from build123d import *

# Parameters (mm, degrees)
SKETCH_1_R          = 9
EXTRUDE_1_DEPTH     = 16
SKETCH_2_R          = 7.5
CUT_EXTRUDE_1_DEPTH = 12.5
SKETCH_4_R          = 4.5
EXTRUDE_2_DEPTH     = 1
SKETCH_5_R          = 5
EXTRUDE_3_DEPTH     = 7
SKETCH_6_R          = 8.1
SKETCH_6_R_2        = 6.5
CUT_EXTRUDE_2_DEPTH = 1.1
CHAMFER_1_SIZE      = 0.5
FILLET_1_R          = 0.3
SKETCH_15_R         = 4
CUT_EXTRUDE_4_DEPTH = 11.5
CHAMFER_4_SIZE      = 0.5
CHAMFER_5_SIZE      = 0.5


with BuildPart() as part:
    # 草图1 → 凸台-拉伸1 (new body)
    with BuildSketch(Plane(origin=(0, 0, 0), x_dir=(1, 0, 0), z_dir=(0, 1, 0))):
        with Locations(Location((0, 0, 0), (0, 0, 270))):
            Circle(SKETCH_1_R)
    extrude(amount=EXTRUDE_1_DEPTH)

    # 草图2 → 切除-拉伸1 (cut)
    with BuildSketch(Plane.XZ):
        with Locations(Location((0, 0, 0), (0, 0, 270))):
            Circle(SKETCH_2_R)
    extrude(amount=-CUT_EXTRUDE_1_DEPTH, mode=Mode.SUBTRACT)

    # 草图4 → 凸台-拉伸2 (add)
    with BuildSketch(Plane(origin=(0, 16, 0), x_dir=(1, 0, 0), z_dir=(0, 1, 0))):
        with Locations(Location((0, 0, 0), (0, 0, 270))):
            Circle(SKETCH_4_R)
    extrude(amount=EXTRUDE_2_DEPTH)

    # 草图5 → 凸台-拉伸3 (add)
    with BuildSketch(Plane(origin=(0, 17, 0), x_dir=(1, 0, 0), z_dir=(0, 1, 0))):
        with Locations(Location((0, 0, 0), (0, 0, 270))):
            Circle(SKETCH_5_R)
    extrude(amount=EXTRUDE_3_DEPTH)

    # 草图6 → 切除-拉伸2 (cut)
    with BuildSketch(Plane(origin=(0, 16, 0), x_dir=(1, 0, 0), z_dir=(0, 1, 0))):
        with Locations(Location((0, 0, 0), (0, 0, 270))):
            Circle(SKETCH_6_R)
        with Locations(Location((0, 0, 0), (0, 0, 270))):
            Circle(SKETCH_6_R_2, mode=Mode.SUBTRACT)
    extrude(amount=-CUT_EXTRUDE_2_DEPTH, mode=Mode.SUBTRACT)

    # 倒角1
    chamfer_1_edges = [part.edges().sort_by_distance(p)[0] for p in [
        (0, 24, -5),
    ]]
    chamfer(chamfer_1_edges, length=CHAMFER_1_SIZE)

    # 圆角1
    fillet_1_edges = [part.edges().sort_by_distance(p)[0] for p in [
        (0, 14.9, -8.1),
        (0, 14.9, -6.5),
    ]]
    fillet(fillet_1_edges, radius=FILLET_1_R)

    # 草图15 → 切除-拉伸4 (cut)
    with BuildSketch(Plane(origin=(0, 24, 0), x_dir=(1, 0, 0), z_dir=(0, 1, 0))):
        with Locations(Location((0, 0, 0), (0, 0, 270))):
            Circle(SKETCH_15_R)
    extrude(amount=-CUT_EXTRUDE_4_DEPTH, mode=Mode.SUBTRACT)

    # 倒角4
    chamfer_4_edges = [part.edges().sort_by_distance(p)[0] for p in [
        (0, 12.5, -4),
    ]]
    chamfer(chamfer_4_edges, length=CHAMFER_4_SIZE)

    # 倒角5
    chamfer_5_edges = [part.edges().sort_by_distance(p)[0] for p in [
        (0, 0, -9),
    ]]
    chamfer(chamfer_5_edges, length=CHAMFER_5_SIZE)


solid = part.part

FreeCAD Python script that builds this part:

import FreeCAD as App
import Part
import Sketcher
from FreeCAD import Vector


def edges_at(feature, points):
    """Names of the edges that pass closest to the given points."""
    edges = feature.Shape.Edges
    near = lambda p: min(range(len(edges)), key=lambda i: edges[i].distToShape(Part.Vertex(*p))[0])
    return sorted({f"Edge{near(p) + 1}" for p in points})

doc = App.newDocument("Part")
params = doc.addObject("Spreadsheet::Sheet", "Params")
for row, (alias, value) in enumerate([
    ("sketch1_diameter", "18 mm"),
    ("pad1_length", "16 mm"),
    ("sketch2_diameter", "15 mm"),
    ("pocket1_length", "12.5 mm"),
    ("sketch3_diameter", "9 mm"),
    ("pad2_length", "1 mm"),
    ("sketch4_diameter", "10 mm"),
    ("pad3_length", "7 mm"),
    ("sketch5_diameter", "13 mm"),
    ("sketch5_diameter2", "16.2 mm"),
    ("pocket2_length", "1.1 mm"),
    ("chamfer_size", "0.5 mm"),
    ("fillet_radius", "0.3 mm"),
    ("sketch6_diameter", "8 mm"),
    ("pocket3_length", "11.5 mm"),
    ("chamfer2_size", "0.5 mm"),
    ("chamfer3_size", "0.5 mm"),
], start=1):
    params.set(f"A{row}", alias)
    params.set(f"B{row}", "=" + value)
    params.setAlias(f"B{row}", alias)

body = doc.addObject("PartDesign::Body", "Body")

sketch1 = body.newObject("Sketcher::SketchObject", "Sketch")
sketch1.AttachmentSupport = (doc.getObject("XZ_Plane"), [""])
sketch1.MapMode = "FlatFace"
sketch1.addGeometry(Part.Circle(Vector(0, 0, 0), Vector(0, 0, 1), 9), False)
sketch1.addConstraint([
    Sketcher.Constraint("Coincident", 0, 3, -1, 1),
    Sketcher.Constraint("Diameter", 0, 18.0),
])
sketch1.setExpression("Constraints[1]", "Params.sketch1_diameter")
pad1 = body.newObject("PartDesign::Pad", "Pad")
pad1.Profile = sketch1
pad1.setExpression("Length", "Params.pad1_length")
pad1.Reversed = True

sketch2 = body.newObject("Sketcher::SketchObject", "Sketch001")
sketch2.AttachmentSupport = (doc.getObject("XZ_Plane"), [""])
sketch2.MapMode = "FlatFace"
sketch2.addGeometry(Part.Circle(Vector(0, 0, 0), Vector(0, 0, 1), 8), False)
sketch2.addConstraint([
    Sketcher.Constraint("Coincident", 0, 3, -1, 1),
    Sketcher.Constraint("Diameter", 0, 15.0),
])
sketch2.setExpression("Constraints[1]", "Params.sketch2_diameter")
pocket1 = body.newObject("PartDesign::Pocket", "Pocket")
pocket1.Profile = sketch2
pocket1.setExpression("Length", "Params.pocket1_length")

sketch3 = body.newObject("Sketcher::SketchObject", "Sketch002")
sketch3.AttachmentSupport = (doc.getObject("XZ_Plane"), [""])
sketch3.MapMode = "FlatFace"
sketch3.AttachmentOffset = App.Placement(Vector(0, 0, -16), App.Rotation())
sketch3.addGeometry(Part.Circle(Vector(0, 0, 0), Vector(0, 0, 1), 4.5), False)
sketch3.addConstraint([
    Sketcher.Constraint("Coincident", 0, 3, -1, 1),
    Sketcher.Constraint("Diameter", 0, 9.0),
])
sketch3.setExpression("Constraints[1]", "Params.sketch3_diameter")
pad2 = body.newObject("PartDesign::Pad", "Pad001")
pad2.Profile = sketch3
pad2.setExpression("Length", "Params.pad2_length")
pad2.Reversed = True

sketch4 = body.newObject("Sketcher::SketchObject", "Sketch003")
sketch4.AttachmentSupport = (doc.getObject("XZ_Plane"), [""])
sketch4.MapMode = "FlatFace"
sketch4.AttachmentOffset = App.Placement(Vector(0, 0, -17), App.Rotation())
sketch4.addGeometry(Part.Circle(Vector(0, 0, 0), Vector(0, 0, 1), 5), False)
sketch4.addConstraint([
    Sketcher.Constraint("Coincident", 0, 3, -1, 1),
    Sketcher.Constraint("Diameter", 0, 10.0),
])
sketch4.setExpression("Constraints[1]", "Params.sketch4_diameter")
pad3 = body.newObject("PartDesign::Pad", "Pad002")
pad3.Profile = sketch4
pad3.setExpression("Length", "Params.pad3_length")
pad3.Reversed = True

sketch5 = body.newObject("Sketcher::SketchObject", "Sketch004")
sketch5.AttachmentSupport = (doc.getObject("XZ_Plane"), [""])
sketch5.MapMode = "FlatFace"
sketch5.AttachmentOffset = App.Placement(Vector(0, 0, -16), App.Rotation())
sketch5.addGeometry([
    Part.Circle(Vector(0, 0, 0), Vector(0, 0, 1), 8),
    Part.Circle(Vector(0, 0, 0), Vector(0, 0, 1), 6),
], False)
sketch5.addConstraint([
    Sketcher.Constraint("Coincident", 0, 3, -1, 1),
    Sketcher.Constraint("Coincident", 1, 3, -1, 1),
    Sketcher.Constraint("Diameter", 1, 13.0),
    Sketcher.Constraint("Diameter", 0, 16.2),
])
sketch5.setExpression("Constraints[2]", "Params.sketch5_diameter")
sketch5.setExpression("Constraints[3]", "Params.sketch5_diameter2")
pocket2 = body.newObject("PartDesign::Pocket", "Pocket001")
pocket2.Profile = sketch5
pocket2.setExpression("Length", "Params.pocket2_length")
pocket2.Reversed = True
doc.recompute()

chamfer = body.newObject("PartDesign::Chamfer", "Chamfer")
chamfer.Base = (pocket2, edges_at(pocket2, [(0, 24, -5)]))
chamfer.setExpression("Size", "Params.chamfer_size")
doc.recompute()

fillet = body.newObject("PartDesign::Fillet", "Fillet")
fillet.Base = (chamfer, edges_at(chamfer, [(0, 14.9, -8.1), (0, 14.9, -6.5)]))
fillet.setExpression("Radius", "Params.fillet_radius")

sketch6 = body.newObject("Sketcher::SketchObject", "Sketch005")
sketch6.AttachmentSupport = (doc.getObject("XZ_Plane"), [""])
sketch6.MapMode = "FlatFace"
sketch6.AttachmentOffset = App.Placement(Vector(0, 0, -24), App.Rotation())
sketch6.addGeometry(Part.Circle(Vector(0, 0, 0), Vector(0, 0, 1), 4), False)
sketch6.addConstraint([
    Sketcher.Constraint("Coincident", 0, 3, -1, 1),
    Sketcher.Constraint("Diameter", 0, 8.0),
])
sketch6.setExpression("Constraints[1]", "Params.sketch6_diameter")
pocket3 = body.newObject("PartDesign::Pocket", "Pocket002")
pocket3.Profile = sketch6
pocket3.setExpression("Length", "Params.pocket3_length")
pocket3.Reversed = True
doc.recompute()

chamfer2 = body.newObject("PartDesign::Chamfer", "Chamfer001")
chamfer2.Base = (pocket3, edges_at(pocket3, [(0, 12.5, -4)]))
chamfer2.setExpression("Size", "Params.chamfer2_size")
doc.recompute()

chamfer3 = body.newObject("PartDesign::Chamfer", "Chamfer002")
chamfer3.Base = (chamfer2, edges_at(chamfer2, [(0, 0, -9)]))
chamfer3.setExpression("Size", "Params.chamfer3_size")

doc.recompute()
